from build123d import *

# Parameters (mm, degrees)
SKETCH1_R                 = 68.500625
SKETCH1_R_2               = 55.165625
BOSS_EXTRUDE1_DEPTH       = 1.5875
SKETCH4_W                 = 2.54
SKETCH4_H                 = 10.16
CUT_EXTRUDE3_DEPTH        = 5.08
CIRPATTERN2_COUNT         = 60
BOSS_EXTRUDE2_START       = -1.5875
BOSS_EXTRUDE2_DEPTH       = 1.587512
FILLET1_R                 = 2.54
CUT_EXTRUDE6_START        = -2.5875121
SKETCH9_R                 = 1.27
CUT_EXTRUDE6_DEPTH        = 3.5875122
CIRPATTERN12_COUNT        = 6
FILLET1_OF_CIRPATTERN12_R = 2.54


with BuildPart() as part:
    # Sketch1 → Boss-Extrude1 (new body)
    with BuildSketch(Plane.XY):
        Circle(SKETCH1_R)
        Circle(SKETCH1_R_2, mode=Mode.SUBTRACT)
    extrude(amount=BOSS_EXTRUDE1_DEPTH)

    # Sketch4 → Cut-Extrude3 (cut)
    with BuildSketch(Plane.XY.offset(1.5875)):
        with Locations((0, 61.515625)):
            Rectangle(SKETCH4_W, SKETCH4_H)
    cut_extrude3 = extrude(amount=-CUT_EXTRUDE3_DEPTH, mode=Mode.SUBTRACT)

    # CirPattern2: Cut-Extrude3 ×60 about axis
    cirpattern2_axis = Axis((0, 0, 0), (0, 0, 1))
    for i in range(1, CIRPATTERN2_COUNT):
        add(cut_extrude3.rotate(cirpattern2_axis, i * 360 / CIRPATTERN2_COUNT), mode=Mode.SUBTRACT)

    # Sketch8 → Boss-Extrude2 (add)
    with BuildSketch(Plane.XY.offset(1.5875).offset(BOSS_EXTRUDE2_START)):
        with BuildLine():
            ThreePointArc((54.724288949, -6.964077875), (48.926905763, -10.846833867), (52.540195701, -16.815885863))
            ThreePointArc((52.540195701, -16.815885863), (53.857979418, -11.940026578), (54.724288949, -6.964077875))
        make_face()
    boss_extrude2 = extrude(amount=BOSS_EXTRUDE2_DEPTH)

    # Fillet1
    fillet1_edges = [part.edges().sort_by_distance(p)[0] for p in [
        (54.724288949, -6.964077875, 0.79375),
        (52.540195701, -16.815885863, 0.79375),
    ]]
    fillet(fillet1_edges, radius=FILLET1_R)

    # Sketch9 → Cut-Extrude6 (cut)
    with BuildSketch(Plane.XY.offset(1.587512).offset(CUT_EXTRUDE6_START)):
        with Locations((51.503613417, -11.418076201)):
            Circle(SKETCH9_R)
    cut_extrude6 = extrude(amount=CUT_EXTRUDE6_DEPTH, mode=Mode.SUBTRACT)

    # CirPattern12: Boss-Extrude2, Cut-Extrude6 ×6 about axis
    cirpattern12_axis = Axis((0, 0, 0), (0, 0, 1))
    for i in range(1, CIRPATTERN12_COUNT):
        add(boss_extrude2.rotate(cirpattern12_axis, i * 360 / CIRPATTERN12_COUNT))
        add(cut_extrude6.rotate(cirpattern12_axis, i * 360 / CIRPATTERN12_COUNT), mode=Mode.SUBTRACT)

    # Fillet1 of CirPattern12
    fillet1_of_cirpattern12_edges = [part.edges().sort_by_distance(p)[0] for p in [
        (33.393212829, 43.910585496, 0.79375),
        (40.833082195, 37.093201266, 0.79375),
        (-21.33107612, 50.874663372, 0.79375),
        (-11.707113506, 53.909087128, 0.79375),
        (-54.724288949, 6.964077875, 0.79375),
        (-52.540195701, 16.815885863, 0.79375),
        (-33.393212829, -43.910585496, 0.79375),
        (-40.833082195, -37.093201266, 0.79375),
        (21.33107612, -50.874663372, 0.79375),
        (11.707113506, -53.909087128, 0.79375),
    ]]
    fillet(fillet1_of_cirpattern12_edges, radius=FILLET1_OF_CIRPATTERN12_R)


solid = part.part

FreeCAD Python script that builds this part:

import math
import FreeCAD as App
import Part
import Sketcher

V = App.Vector
Q = App.Units.Quantity


def edges_at(feature, points):
    """Names of the edges that pass closest to the given points."""
    edges = feature.Shape.Edges
    near = lambda p: min(range(len(edges)), key=lambda i: edges[i].distToShape(Part.Vertex(*p))[0])
    return sorted({f"Edge{near(p) + 1}" for p in points})

doc = App.newDocument("Part")
body = doc.addObject("PartDesign::Body", "Body")

# Sketch on XY plane
sketch1 = body.newObject("Sketcher::SketchObject", "Sketch")
sketch1.AttachmentSupport = (doc.getObject("XY_Plane"), [""])
sketch1.MapMode = "FlatFace"
sketch1.addGeometry(Part.Circle(V(0, 0, 0), V(0, 0, 1), 69), False)
sketch1.addGeometry(Part.Circle(V(0, 0, 0), V(0, 0, 1), 55), False)
sketch1.addConstraint(Sketcher.Constraint("Coincident", 0, 3, -1, 1))
sketch1.addConstraint(Sketcher.Constraint("Coincident", 1, 3, -1, 1))
sketch1.addConstraint(Sketcher.Constraint("Diameter", 1, Q("4.34375 in")))
sketch1.addConstraint(Sketcher.Constraint("Diameter", 0, Q("137.00125 mm")))
pad1 = body.newObject("PartDesign::Pad", "Pad")
pad1.Profile = sketch1
pad1.Length = Q("0.0625 in")

# Sketch on XY plane
sketch2 = body.newObject("Sketcher::SketchObject", "Sketch001")
sketch2.AttachmentSupport = (doc.getObject("XY_Plane"), [""])
sketch2.MapMode = "FlatFace"
sketch2.AttachmentOffset = App.Placement(V(0, 0, 0.0625 * 25.4), App.Rotation())
sketch2.addGeometry(Part.LineSegment(V(-1.3, 66.6, 0), V(-1.3, 56.4, 0)), False)
sketch2.addGeometry(Part.LineSegment(V(-1.3, 56.4, 0), V(1.3, 56.4, 0)), False)
sketch2.addGeometry(Part.LineSegment(V(1.3, 56.4, 0), V(1.3, 66.6, 0)), False)
sketch2.addGeometry(Part.LineSegment(V(1.3, 66.6, 0), V(-1.3, 66.6, 0)), False)
sketch2.addConstraint(Sketcher.Constraint("Coincident", 0, 2, 1, 1))
sketch2.addConstraint(Sketcher.Constraint("Coincident", 1, 2, 2, 1))
sketch2.addConstraint(Sketcher.Constraint("Coincident", 2, 2, 3, 1))
sketch2.addConstraint(Sketcher.Constraint("Coincident", 3, 2, 0, 1))
sketch2.addConstraint(Sketcher.Constraint("Vertical", 0))
sketch2.addConstraint(Sketcher.Constraint("Horizontal", 1))
sketch2.addConstraint(Sketcher.Constraint("Vertical", 2))
sketch2.addConstraint(Sketcher.Constraint("Horizontal", 3))
sketch2.addConstraint(Sketcher.Constraint("DistanceX", 1, 1, 1, 2, Q("0.1 in")))
sketch2.addConstraint(Sketcher.Constraint("DistanceY", 0, 2, 0, 1, Q("0.4 in")))
sketch2.addConstraint(Sketcher.Constraint("DistanceX", 0, 2, -1, 1, Q("0.05 in")))
sketch2.addConstraint(Sketcher.Constraint("DistanceY", -1, 1, 0, 2, Q("56.435625 mm")))
pocket1 = body.newObject("PartDesign::Pocket", "Pocket")
pocket1.Profile = sketch2
pocket1.Length = Q("0.2 in")
doc.recompute()

polarpattern = body.newObject("PartDesign::PolarPattern", "PolarPattern")
polarpattern.Originals = [pocket1]
polarpattern.Axis = (doc.getObject("Z_Axis"), [""])
polarpattern.Angle = 360
polarpattern.Occurrences = 60
body.Tip = polarpattern

# Sketch on XY plane
sketch3 = body.newObject("Sketcher::SketchObject", "Sketch002")
sketch3.AttachmentSupport = (doc.getObject("XY_Plane"), [""])
sketch3.MapMode = "FlatFace"
sketch3.addGeometry(Part.ArcOfCircle(Part.Circle(V(54, -12, 0), V(0, 0, 1), 5), math.radians(80), math.radians(255)), False)
sketch3.addGeometry(Part.ArcOfCircle(Part.Circle(V(0, 0, 0), V(0, 0, 1), 55), math.radians(-17.75), math.radians(-7.25)), False)
sketch3.addConstraint(Sketcher.Constraint("Coincident", 0, 1, 1, 2))
sketch3.addConstraint(Sketcher.Constraint("Coincident", 1, 1, 0, 2))
sketch3.addConstraint(Sketcher.Constraint("Coincident", 1, 3, -1, 1))
sketch3.addConstraint(Sketcher.Constraint("Radius", 1, Q("2.171875 in")))
sketch3.addConstraint(Sketcher.Constraint("Radius", 0, Q("5.050798 mm")))
sketch3.addConstraint(Sketcher.Constraint("DistanceX", -1, 1, 0, 3, Q("53.857979 mm")))
sketch3.addConstraint(Sketcher.Constraint("DistanceX", -1, 1, 0, 1, Q("54.724289 mm")))
pad2 = body.newObject("PartDesign::Pad", "Pad001")
pad2.Profile = sketch3
pad2.Length = 1.587512
doc.recompute()

fillet = body.newObject("PartDesign::Fillet", "Fillet")
fillet.Base = (pad2, edges_at(pad2, [(54.724, -6.964, 0.794), (52.54, -16.816, 0.794)]))
fillet.Radius = Q("0.1 in")

# Sketch on XY plane
sketch4 = body.newObject("Sketcher::SketchObject", "Sketch003")
sketch4.AttachmentSupport = (doc.getObject("XY_Plane"), [""])
sketch4.MapMode = "FlatFace"
sketch4.AttachmentOffset = App.Placement(V(0, 0, -1), App.Rotation())
sketch4.addGeometry(Part.Circle(V(51.5, -11.4, 0), V(0, 0, 1), 1.3), False)
sketch4.addConstraint(Sketcher.Constraint("Diameter", 0, Q("0.1 in")))
sketch4.addConstraint(Sketcher.Constraint("DistanceX", -1, 1, 0, 3, Q("51.503613 mm")))
sketch4.addConstraint(Sketcher.Constraint("DistanceY", 0, 3, -1, 1, Q("11.418076 mm")))
pocket2 = body.newObject("PartDesign::Pocket", "Pocket001")
pocket2.Profile = sketch4
pocket2.Length = 3.587512
pocket2.Reversed = True
doc.recompute()

polarpattern2 = body.newObject("PartDesign::PolarPattern", "PolarPattern001")
polarpattern2.Originals = [pad2, pocket2]
polarpattern2.Axis = (doc.getObject("Z_Axis"), [""])
polarpattern2.Angle = 360
polarpattern2.Occurrences = 6
body.Tip = polarpattern2
doc.recompute()

fillet2 = body.newObject("PartDesign::Fillet", "Fillet001")
fillet2.Base = (polarpattern2, edges_at(polarpattern2, [
    (33.393, 43.911, 0.794),
    (40.833, 37.093, 0.794),
    (-21.331, 50.875, 0.794),
    (-11.707, 53.909, 0.794),
    (-54.724, 6.964, 0.794),
    (-52.54, 16.816, 0.794),
    (-33.393, -43.911, 0.794),
    (-40.833, -37.093, 0.794),
    (21.331, -50.875, 0.794),
    (11.707, -53.909, 0.794),
]))
fillet2.Radius = Q("0.1 in")

doc.recompute()
